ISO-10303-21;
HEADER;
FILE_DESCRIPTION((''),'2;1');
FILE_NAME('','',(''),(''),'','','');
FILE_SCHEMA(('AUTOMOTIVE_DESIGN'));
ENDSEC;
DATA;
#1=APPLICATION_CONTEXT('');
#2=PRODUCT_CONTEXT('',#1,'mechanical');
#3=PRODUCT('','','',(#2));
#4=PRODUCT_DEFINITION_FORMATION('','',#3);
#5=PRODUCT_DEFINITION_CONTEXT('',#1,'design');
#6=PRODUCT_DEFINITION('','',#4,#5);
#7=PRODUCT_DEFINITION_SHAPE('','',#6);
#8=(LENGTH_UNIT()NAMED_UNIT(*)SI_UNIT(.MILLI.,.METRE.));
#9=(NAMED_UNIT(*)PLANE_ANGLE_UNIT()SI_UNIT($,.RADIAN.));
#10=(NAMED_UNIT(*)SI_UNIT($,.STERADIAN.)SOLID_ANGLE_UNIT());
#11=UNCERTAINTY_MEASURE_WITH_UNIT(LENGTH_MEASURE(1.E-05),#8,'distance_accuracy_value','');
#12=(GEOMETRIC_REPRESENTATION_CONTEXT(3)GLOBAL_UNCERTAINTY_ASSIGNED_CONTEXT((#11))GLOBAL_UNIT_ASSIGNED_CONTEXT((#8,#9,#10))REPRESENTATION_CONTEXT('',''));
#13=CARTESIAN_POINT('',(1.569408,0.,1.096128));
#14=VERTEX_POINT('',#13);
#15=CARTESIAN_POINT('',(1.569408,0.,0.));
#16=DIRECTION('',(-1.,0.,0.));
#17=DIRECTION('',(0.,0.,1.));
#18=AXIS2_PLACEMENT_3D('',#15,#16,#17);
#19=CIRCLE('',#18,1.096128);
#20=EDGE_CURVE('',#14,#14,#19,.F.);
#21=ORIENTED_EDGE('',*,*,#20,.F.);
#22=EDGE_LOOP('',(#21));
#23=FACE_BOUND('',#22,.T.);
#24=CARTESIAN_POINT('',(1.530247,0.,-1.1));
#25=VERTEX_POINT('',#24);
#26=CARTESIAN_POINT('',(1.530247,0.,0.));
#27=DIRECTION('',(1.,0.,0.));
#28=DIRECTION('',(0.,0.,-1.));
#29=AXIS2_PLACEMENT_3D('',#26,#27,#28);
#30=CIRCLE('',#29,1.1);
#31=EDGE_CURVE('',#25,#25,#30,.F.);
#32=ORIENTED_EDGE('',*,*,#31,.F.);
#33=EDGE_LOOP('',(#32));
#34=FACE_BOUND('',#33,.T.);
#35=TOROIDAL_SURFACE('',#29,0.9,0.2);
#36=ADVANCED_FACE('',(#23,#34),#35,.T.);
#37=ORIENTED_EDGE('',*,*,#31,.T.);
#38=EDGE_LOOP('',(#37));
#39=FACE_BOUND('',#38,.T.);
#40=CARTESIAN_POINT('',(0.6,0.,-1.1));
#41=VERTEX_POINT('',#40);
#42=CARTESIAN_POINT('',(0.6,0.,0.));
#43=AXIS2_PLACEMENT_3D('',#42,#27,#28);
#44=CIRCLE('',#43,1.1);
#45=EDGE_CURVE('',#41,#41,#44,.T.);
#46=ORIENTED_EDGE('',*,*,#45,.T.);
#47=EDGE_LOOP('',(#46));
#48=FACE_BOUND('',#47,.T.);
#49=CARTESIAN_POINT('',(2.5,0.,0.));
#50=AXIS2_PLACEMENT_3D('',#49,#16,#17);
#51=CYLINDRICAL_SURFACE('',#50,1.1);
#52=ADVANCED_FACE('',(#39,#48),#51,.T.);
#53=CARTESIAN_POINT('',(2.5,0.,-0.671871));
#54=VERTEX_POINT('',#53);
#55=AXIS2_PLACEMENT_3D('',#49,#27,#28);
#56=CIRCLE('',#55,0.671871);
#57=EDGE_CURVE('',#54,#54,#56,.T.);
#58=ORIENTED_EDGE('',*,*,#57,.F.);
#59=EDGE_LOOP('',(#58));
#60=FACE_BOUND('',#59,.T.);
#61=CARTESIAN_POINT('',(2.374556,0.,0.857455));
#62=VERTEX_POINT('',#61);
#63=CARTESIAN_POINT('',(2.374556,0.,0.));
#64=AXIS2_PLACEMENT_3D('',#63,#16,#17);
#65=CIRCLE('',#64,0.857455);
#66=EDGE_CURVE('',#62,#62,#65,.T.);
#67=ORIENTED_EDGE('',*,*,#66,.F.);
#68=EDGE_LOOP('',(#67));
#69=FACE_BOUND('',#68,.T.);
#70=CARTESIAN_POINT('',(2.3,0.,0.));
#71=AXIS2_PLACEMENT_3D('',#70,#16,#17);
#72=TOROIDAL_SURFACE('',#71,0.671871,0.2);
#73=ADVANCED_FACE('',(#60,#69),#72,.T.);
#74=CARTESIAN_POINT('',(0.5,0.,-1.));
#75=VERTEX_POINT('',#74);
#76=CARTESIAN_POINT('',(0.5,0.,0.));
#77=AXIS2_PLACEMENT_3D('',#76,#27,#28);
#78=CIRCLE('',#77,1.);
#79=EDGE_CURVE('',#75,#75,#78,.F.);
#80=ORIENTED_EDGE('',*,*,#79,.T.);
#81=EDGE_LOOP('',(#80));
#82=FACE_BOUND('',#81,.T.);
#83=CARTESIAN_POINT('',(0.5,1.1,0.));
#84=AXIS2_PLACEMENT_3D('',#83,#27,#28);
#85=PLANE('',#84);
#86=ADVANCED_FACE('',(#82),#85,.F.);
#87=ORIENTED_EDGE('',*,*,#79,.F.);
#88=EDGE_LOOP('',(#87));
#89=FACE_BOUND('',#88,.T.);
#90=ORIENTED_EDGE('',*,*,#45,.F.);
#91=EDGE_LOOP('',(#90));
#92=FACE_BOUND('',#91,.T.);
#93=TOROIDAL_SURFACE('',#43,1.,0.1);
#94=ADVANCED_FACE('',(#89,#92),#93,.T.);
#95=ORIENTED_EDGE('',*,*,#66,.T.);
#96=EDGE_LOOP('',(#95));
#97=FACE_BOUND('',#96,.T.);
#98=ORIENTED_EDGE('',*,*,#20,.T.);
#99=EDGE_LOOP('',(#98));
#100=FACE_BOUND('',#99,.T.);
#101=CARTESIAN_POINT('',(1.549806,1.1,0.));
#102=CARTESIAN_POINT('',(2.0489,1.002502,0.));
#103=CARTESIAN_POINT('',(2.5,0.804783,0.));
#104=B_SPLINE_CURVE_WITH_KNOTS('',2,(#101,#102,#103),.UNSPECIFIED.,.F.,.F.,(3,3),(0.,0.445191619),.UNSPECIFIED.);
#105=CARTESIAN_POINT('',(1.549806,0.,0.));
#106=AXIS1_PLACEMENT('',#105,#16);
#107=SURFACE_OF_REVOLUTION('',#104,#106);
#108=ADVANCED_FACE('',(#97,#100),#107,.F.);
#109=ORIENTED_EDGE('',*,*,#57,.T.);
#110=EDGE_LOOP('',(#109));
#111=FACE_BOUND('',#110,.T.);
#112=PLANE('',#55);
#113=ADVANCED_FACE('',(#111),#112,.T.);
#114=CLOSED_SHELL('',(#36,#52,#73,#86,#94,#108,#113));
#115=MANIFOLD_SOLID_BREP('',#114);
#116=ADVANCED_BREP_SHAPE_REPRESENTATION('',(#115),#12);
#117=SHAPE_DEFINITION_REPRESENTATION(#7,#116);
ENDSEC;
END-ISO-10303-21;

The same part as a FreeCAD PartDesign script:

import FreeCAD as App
import Part
import Sketcher
from FreeCAD import Vector
Q = App.Units.Quantity


def edges_at(feature, points):
    """Names of the edges that pass closest to the given points."""
    edges = feature.Shape.Edges
    near = lambda p: min(range(len(edges)), key=lambda i: edges[i].distToShape(Part.Vertex(*p))[0])
    return sorted({f"Edge{near(p) + 1}" for p in points})

doc = App.newDocument("Part")
body = doc.addObject("PartDesign::Body", "Body")

# Sketch on YZ plane
sketch1 = doc.addObject("Sketcher::SketchObject", "Sketch")
body.addObject(sketch1)
sketch1.AttachmentSupport = (doc.YZ_Plane, [""])
sketch1.MapMode = "FlatFace"
sketch1.addGeometry(Part.Circle(Vector(0, 0, 0), Vector(0, 0, 1), 1.1), False)
sketch1.addConstraint(Sketcher.Constraint("Coincident", 0, 3, -1, 1))
sketch1.addConstraint(Sketcher.Constraint("Diameter", 0, Q("2.2 mm")))
pad1 = doc.addObject("PartDesign::Pad", "Pad")
body.addObject(pad1)
pad1.Profile = sketch1
pad1.Length = 2.5
doc.recompute()

fillet = doc.addObject("PartDesign::Fillet", "Fillet")
body.addObject(fillet)
fillet.Base = (pad1, edges_at(pad1, [(0, 0, 1.1), (2.5, 0, 1.1)]))
fillet.Radius = 0.1

# Sketch on XY plane
sketch2 = doc.addObject("Sketcher::SketchObject", "Sketch001")
body.addObject(sketch2)
sketch2.AttachmentSupport = (doc.XY_Plane, [""])
sketch2.MapMode = "FlatFace"
sketch2.addGeometry(Part.LineSegment(Vector(2.5, 1.1, 0), Vector(1.549806, 1.1, 0)), False)
sketch2.addGeometry(Part.BSplineCurve([Vector(1.549806, 1.1, 0), Vector(2.0489, 1.002502, 0), Vector(2.5, 0.804783, 0)], [3, 3], [0, 0.445191619], False, 2, [1, 1, 1], False), False)
sketch2.addGeometry(Part.LineSegment(Vector(2.5, 0.804783, 0), Vector(2.5, 1.1, 0)), False)
sketch2.addConstraint(Sketcher.Constraint("Block", 1))
sketch2.addConstraint(Sketcher.Constraint("Coincident", 0, 2, 1, 1))
sketch2.addConstraint(Sketcher.Constraint("Coincident", 1, 2, 2, 1))
sketch2.addConstraint(Sketcher.Constraint("Coincident", 2, 2, 0, 1))
sketch2.addConstraint(Sketcher.Constraint("Horizontal", 0))
sketch2.addConstraint(Sketcher.Constraint("Vertical", 2))
groove = doc.addObject("PartDesign::Groove", "Groove")
body.addObject(groove)
groove.Profile = sketch2
groove.ReferenceAxis = (sketch2, ["H_Axis"])
groove.Angle = 360
doc.recompute()

fillet2 = doc.addObject("PartDesign::Fillet", "Fillet001")
body.addObject(fillet2)
fillet2.Base = (groove, edges_at(groove, [(1.55, -0.778, 0.778), (2.5, -0.805, 0)]))
fillet2.Radius = 0.2

# Sketch on XY plane
sketch3 = doc.addObject("Sketcher::SketchObject", "Sketch002")
body.addObject(sketch3)
sketch3.AttachmentSupport = (doc.XY_Plane, [""])
sketch3.MapMode = "FlatFace"
sketch3.addGeometry(Part.LineSegment(Vector(0, 1.1, 0), Vector(0, 0, 0)), False)
sketch3.addGeometry(Part.LineSegment(Vector(0, 0, 0), Vector(0.5, 0, 0)), False)
sketch3.addGeometry(Part.LineSegment(Vector(0.5, 0, 0), Vector(0.5, 1.1, 0)), False)
sketch3.addGeometry(Part.LineSegment(Vector(0.5, 1.1, 0), Vector(0, 1.1, 0)), False)
sketch3.addConstraint(Sketcher.Constraint("Coincident", 0, 2, 1, 1))
sketch3.addConstraint(Sketcher.Constraint("Coincident", 1, 2, 2, 1))
sketch3.addConstraint(Sketcher.Constraint("Coincident", 2, 2, 3, 1))
sketch3.addConstraint(Sketcher.Constraint("Coincident", 3, 2, 0, 1))
sketch3.addConstraint(Sketcher.Constraint("Vertical", 0))
sketch3.addConstraint(Sketcher.Constraint("Horizontal", 1))
sketch3.addConstraint(Sketcher.Constraint("Vertical", 2))
sketch3.addConstraint(Sketcher.Constraint("Horizontal", 3))
sketch3.addConstraint(Sketcher.Constraint("Coincident", 0, 2, -1, 1))
sketch3.addConstraint(Sketcher.Constraint("DistanceX", 1, 1, 1, 2, Q("0.5 mm")))
sketch3.addConstraint(Sketcher.Constraint("DistanceY", 0, 2, 0, 1, Q("1.1 mm")))
groove2 = doc.addObject("PartDesign::Groove", "Groove001")
body.addObject(groove2)
groove2.Profile = sketch3
groove2.ReferenceAxis = (sketch3, ["H_Axis"])
groove2.Angle = 360
doc.recompute()

fillet3 = doc.addObject("PartDesign::Fillet", "Fillet002")
body.addObject(fillet3)
fillet3.Base = (groove2, edges_at(groove2, [(0.5, 0, 1.1)]))
fillet3.Radius = 0.1

doc.recompute()
